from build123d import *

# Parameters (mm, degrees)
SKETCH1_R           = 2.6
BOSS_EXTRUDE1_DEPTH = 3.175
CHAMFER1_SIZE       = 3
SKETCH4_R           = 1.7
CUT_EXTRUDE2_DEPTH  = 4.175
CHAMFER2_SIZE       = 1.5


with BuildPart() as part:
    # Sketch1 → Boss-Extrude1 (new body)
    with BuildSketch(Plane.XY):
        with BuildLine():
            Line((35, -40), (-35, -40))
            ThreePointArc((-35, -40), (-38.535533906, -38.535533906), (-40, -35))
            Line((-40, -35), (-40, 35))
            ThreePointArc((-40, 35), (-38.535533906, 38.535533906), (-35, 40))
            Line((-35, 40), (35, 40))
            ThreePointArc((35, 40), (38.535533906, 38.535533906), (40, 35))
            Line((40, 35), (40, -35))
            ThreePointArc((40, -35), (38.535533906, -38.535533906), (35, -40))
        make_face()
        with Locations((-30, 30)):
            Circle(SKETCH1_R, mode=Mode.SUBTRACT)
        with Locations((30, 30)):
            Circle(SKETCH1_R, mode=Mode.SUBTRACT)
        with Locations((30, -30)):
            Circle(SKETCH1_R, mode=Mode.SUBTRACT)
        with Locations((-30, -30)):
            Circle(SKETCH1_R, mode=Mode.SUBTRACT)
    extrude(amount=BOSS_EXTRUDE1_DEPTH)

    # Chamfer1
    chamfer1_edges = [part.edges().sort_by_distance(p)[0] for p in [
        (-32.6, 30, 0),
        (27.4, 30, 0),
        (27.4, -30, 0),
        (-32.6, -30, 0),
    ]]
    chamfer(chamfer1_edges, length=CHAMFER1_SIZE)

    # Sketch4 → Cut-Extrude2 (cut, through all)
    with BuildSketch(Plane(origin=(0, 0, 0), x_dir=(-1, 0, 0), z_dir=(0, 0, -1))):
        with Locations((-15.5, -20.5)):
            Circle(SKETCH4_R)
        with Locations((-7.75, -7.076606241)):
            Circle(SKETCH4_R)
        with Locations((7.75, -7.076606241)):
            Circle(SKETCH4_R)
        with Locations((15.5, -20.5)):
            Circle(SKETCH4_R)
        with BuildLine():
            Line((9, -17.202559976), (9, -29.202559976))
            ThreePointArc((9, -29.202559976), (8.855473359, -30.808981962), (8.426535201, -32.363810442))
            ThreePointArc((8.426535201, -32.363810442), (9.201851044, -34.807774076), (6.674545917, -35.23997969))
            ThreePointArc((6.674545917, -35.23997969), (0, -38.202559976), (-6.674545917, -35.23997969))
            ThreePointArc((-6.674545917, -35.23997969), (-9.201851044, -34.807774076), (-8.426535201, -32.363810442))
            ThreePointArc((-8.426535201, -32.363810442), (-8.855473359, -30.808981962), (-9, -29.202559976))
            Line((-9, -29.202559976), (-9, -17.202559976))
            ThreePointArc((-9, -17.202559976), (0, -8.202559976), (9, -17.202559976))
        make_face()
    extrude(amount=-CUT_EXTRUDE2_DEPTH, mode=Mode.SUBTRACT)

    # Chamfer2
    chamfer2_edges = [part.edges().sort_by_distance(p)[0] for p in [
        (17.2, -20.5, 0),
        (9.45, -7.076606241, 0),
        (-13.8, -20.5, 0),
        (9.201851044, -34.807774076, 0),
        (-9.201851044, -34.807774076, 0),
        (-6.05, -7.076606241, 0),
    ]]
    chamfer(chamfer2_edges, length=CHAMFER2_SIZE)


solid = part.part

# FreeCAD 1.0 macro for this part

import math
import FreeCAD as App
import Part
import Sketcher
from FreeCAD import Vector


def edges_at(feature, points):
    """Names of the edges that pass closest to the given points."""
    edges = feature.Shape.Edges
    near = lambda p: min(range(len(edges)), key=lambda i: edges[i].distToShape(Part.Vertex(*p))[0])
    return sorted({f"Edge{near(p) + 1}" for p in points})

doc = App.newDocument("Part")
body = doc.addObject("PartDesign::Body", "Body")

# Sketch on XY plane
sketch1 = body.newObject("Sketcher::SketchObject", "Sketch")
sketch1.AttachmentSupport = (doc.getObject("XY_Plane"), [""])
sketch1.MapMode = "FlatFace"
sketch1.addGeometry([
    Part.LineSegment(Vector(-35, -40, 0), Vector(35, -40, 0)),  # 0
    Part.ArcOfCircle(Part.Circle(Vector(35, -35, 0), Vector(0, 0, 1), 5), math.radians(-90), math.radians(0)),  # 1
    Part.LineSegment(Vector(40, -35, 0), Vector(40, 35, 0)),  # 2
    Part.ArcOfCircle(Part.Circle(Vector(35, 35, 0), Vector(0, 0, 1), 5), math.radians(0), math.radians(90)),  # 3
    Part.LineSegment(Vector(35, 40, 0), Vector(-35, 40, 0)),  # 4
    Part.ArcOfCircle(Part.Circle(Vector(-35, 35, 0), Vector(0, 0, 1), 5), math.radians(90), math.radians(180)),  # 5
    Part.LineSegment(Vector(-40, 35, 0), Vector(-40, -35, 0)),  # 6
    Part.ArcOfCircle(Part.Circle(Vector(-35, -35, 0), Vector(0, 0, 1), 5), math.radians(180), math.radians(270)),  # 7
    Part.Circle(Vector(30, -30, 0), Vector(0, 0, 1), 2.6),  # 8
    Part.Circle(Vector(-30, -30, 0), Vector(0, 0, 1), 2.6),  # 9
    Part.Circle(Vector(30, 30, 0), Vector(0, 0, 1), 2.6),  # 10
    Part.Circle(Vector(-30, 30, 0), Vector(0, 0, 1), 2.6),  # 11
], False)
sketch1.addConstraint([
    Sketcher.Constraint("Tangent", 0, 2, 1, 1),
    Sketcher.Constraint("Tangent", 1, 2, 2, 1),
    Sketcher.Constraint("Tangent", 2, 2, 3, 1),
    Sketcher.Constraint("Tangent", 3, 2, 4, 1),
    Sketcher.Constraint("Tangent", 4, 2, 5, 1),
    Sketcher.Constraint("Tangent", 5, 2, 6, 1),
    Sketcher.Constraint("Tangent", 6, 2, 7, 1),
    Sketcher.Constraint("Tangent", 7, 2, 0, 1),
    Sketcher.Constraint("Horizontal", 0),
    Sketcher.Constraint("Vertical", 2),
    Sketcher.Constraint("Horizontal", 4),
    Sketcher.Constraint("Vertical", 6),
    Sketcher.Constraint("Equal", 1, 3),
    Sketcher.Constraint("Equal", 3, 5),
    Sketcher.Constraint("Equal", 5, 7),
    Sketcher.Constraint("Equal", 8, 9),
    Sketcher.Constraint("Equal", 9, 10),
    Sketcher.Constraint("Equal", 10, 11),
    Sketcher.Constraint("Symmetric", 1, 3, 5, 3, -1, 1),
    Sketcher.Constraint("Symmetric", 9, 3, 10, 3, -1, 1),
    Sketcher.Constraint("Symmetric", 8, 3, 11, 3, -1, 1),
    Sketcher.Constraint("Symmetric", 8, 3, 9, 3, -2),
    Sketcher.Constraint("Equal", 4, 2),
    Sketcher.Constraint("Radius", 1, 5.0),
    Sketcher.Constraint("Diameter", 8, 5.2),
    Sketcher.Constraint("DistanceX", 0, 1, 0, 2, 70.0),
    Sketcher.Constraint("DistanceX", -1, 1, 8, 3, 30.0),
    Sketcher.Constraint("DistanceY", 8, 3, -1, 1, 30.0),
])
pad1 = body.newObject("PartDesign::Pad", "Pad")
pad1.Profile = sketch1
pad1.Length = 3.175
doc.recompute()

chamfer = body.newObject("PartDesign::Chamfer", "Chamfer")
chamfer.Base = (pad1, edges_at(pad1, [
    (-32.6, 30, 0),
    (27.4, 30, 0),
    (27.4, -30, 0),
    (-32.6, -30, 0),
]))
chamfer.Size = 3

# Sketch on XY plane
sketch2 = body.newObject("Sketcher::SketchObject", "Sketch001")
sketch2.AttachmentSupport = (doc.getObject("XY_Plane"), [""])
sketch2.MapMode = "FlatFace"
sketch2.addGeometry([
    Part.Circle(Vector(15.5, -20.5, 0), Vector(0, 0, 1), 1.7),  # 0
    Part.Circle(Vector(7.8, -7.1, 0), Vector(0, 0, 1), 1.7),  # 1
    Part.Circle(Vector(-7.8, -7.1, 0), Vector(0, 0, 1), 1.7),  # 2
    Part.Circle(Vector(-15.5, -20.5, 0), Vector(0, 0, 1), 1.7),  # 3
    Part.LineSegment(Vector(-9, -29.2, 0), Vector(-9, -17.2, 0)),  # 4
    Part.ArcOfCircle(Part.Circle(Vector(0, -17.2, 0), Vector(0, 0, 1), 9), math.radians(0), math.radians(180)),  # 5
    Part.LineSegment(Vector(9, -17.2, 0), Vector(9, -29.2, 0)),  # 6
    Part.ArcOfCircle(Part.Circle(Vector(0, -29.2, 0), Vector(0, 0, 1), 9), math.radians(-21), math.radians(0)),  # 7
    Part.ArcOfCircle(Part.Circle(Vector(7.8, -33.9, 0), Vector(0, 0, 1), 1.7), math.radians(-129), math.radians(67)),  # 8
    Part.ArcOfCircle(Part.Circle(Vector(0, -29.2, 0), Vector(0, 0, 1), 9), math.radians(-138), math.radians(-42)),  # 9
    Part.ArcOfCircle(Part.Circle(Vector(-7.8, -33.9, 0), Vector(0, 0, 1), 1.7), math.radians(113), math.radians(309)),  # 10
    Part.ArcOfCircle(Part.Circle(Vector(0, -29.2, 0), Vector(0, 0, 1), 9), math.radians(180), math.radians(201)),  # 11
], False)
sketch2.addConstraint([
    Sketcher.Constraint("Tangent", 4, 2, 5, 2),
    Sketcher.Constraint("Tangent", 5, 1, 6, 1),
    Sketcher.Constraint("Tangent", 6, 2, 7, 2),
    Sketcher.Constraint("Coincident", 7, 1, 8, 2),
    Sketcher.Constraint("Coincident", 8, 1, 9, 2),
    Sketcher.Constraint("Coincident", 9, 1, 10, 2),
    Sketcher.Constraint("Coincident", 10, 1, 11, 2),
    Sketcher.Constraint("Tangent", 11, 1, 4, 1),
    Sketcher.Constraint("Vertical", 4),
    Sketcher.Constraint("Vertical", 6),
    Sketcher.Constraint("Coincident", 9, 3, 7, 3),
    Sketcher.Constraint("Coincident", 11, 3, 7, 3),
    Sketcher.Constraint("Equal", 0, 1),
    Sketcher.Constraint("Equal", 1, 2),
    Sketcher.Constraint("Equal", 2, 3),
    Sketcher.Constraint("Equal", 5, 7),
    Sketcher.Constraint("Equal", 3, 8),
    Sketcher.Constraint("Equal", 7, 9),
    Sketcher.Constraint("Equal", 8, 10),
    Sketcher.Constraint("Symmetric", 1, 3, 2, 3, -2),
    Sketcher.Constraint("Symmetric", 0, 3, 3, 3, -2),
    Sketcher.Constraint("Symmetric", 8, 3, 10, 3, -2),
    Sketcher.Constraint("PointOnObject", 5, 3, -2),
    Sketcher.Constraint("Vertical", 1, 3, 8, 3),
    Sketcher.Constraint("Radius", 5, 9.0),
    Sketcher.Constraint("Diameter", 0, 3.4),
    Sketcher.Constraint("DistanceY", 4, 1, 4, 2, 12.0),
    Sketcher.Constraint("DistanceX", 3, 3, 0, 3, 31.0),
    Sketcher.Constraint("DistanceY", 0, 3, -1, 1, 20.5),
    Sketcher.Constraint("DistanceX", 2, 3, 1, 3, 15.5),
    Sketcher.Constraint("DistanceY", 5, 3, -1, 1, 17.20256),
    Sketcher.Constraint("DistanceY", 7, 1, -1, 1, 32.36381),
    Sketcher.Constraint("DistanceY", 1, 3, -1, 1, 7.076606),
])
pocket1 = body.newObject("PartDesign::Pocket", "Pocket")
pocket1.Profile = sketch2
pocket1.Type = "ThroughAll"
pocket1.Reversed = True
doc.recompute()

chamfer2 = body.newObject("PartDesign::Chamfer", "Chamfer001")
chamfer2.Base = (pocket1, edges_at(pocket1, [
    (17.2, -20.5, 0),
    (9.45, -7.077, 0),
    (-13.8, -20.5, 0),
    (9.202, -34.808, 0),
    (-9.202, -34.808, 0),
    (-6.05, -7.077, 0),
]))
chamfer2.Size = 1.5

doc.recompute()
